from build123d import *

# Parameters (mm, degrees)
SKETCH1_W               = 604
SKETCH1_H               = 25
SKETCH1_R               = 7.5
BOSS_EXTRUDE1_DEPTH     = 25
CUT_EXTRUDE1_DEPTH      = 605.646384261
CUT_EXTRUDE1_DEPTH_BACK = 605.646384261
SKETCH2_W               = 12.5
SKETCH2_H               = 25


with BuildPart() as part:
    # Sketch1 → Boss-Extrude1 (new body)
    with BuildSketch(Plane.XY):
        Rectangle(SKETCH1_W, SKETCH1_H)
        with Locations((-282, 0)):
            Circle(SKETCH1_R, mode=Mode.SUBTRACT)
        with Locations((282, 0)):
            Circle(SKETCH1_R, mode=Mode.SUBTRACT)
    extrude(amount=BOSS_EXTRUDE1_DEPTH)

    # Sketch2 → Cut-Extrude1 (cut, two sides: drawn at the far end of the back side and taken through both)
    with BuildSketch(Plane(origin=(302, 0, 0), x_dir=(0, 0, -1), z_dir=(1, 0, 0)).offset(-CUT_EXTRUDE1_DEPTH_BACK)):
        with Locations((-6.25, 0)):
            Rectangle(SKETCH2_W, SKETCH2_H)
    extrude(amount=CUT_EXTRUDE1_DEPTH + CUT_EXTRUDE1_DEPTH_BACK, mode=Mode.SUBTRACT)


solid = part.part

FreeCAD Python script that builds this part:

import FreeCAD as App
import Part
import Sketcher
Q = App.Units.Quantity


def add_polygon(sketch, points):
    """Adds a closed chain of lines whose ends are joined by coincident constraints."""
    first, n = sketch.GeometryCount, len(points)
    for a, b in zip(points, points[1:] + points[:1]):
        sketch.addGeometry(Part.LineSegment(App.Vector(*a, 0), App.Vector(*b, 0)), False)
    for i in range(n):
        sketch.addConstraint(Sketcher.Constraint("Coincident", first + i, 2, first + (i + 1) % n, 1))

doc = App.newDocument("Part")
body = doc.addObject("PartDesign::Body", "Body")

# Sketch on XY plane
sketch1 = body.newObject("Sketcher::SketchObject", "Sketch")
sketch1.AttachmentSupport = (doc.getObject("XY_Plane"), [""])
sketch1.MapMode = "FlatFace"
add_polygon(sketch1, [(-302, 12), (-302, -12), (302, -12), (302, 12)])  # lines 0-3
sketch1.addGeometry(Part.Circle(App.Vector(-282, 0, 0), App.Vector(0, 0, 1), 8), False)  # 4
sketch1.addGeometry(Part.Circle(App.Vector(282, 0, 0), App.Vector(0, 0, 1), 8), False)  # 5
sketch1.addConstraint([
    Sketcher.Constraint("Vertical", 0),
    Sketcher.Constraint("Horizontal", 1),
    Sketcher.Constraint("Vertical", 2),
    Sketcher.Constraint("Horizontal", 3),
    Sketcher.Constraint("Equal", 4, 5),
    Sketcher.Constraint("Symmetric", 4, 3, 5, 3, -1, 1),
    Sketcher.Constraint("Symmetric", 0, 2, 2, 2, -1, 1),
    Sketcher.Constraint("PointOnObject", 4, 3, -1),
    Sketcher.Constraint("Diameter", 4, Q("15 mm")),
    Sketcher.Constraint("DistanceX", 1, 1, 1, 2, Q("604 mm")),
    Sketcher.Constraint("DistanceY", 0, 2, 0, 1, Q("25 mm")),
    Sketcher.Constraint("DistanceX", 4, 3, -1, 1, Q("282 mm")),
])
pad1 = body.newObject("PartDesign::Pad", "Pad")
pad1.Profile = sketch1
pad1.Length = 25

# Sketch on YZ plane
sketch2 = body.newObject("Sketcher::SketchObject", "Sketch001")
sketch2.AttachmentSupport = (doc.getObject("YZ_Plane"), [""])
sketch2.MapMode = "FlatFace"
sketch2.AttachmentOffset = App.Placement(App.Vector(0, 0, 302), App.Rotation())
add_polygon(sketch2, [(12, 12), (-12, 12), (-12, 0), (12, 0)])  # lines 0-3
sketch2.addConstraint([
    Sketcher.Constraint("Horizontal", 0),
    Sketcher.Constraint("Vertical", 1),
    Sketcher.Constraint("Horizontal", 2),
    Sketcher.Constraint("Vertical", 3),
    Sketcher.Constraint("Symmetric", 1, 2, 2, 2, -1, 1),
    Sketcher.Constraint("DistanceX", 0, 2, 0, 1, Q("25 mm")),
    Sketcher.Constraint("DistanceY", 1, 2, 1, 1, Q("12.5 mm")),
])
pocket1 = body.newObject("PartDesign::Pocket", "Pocket")
pocket1.Profile = sketch2
pocket1.Type = "ThroughAll"
pocket1.Midplane = True

doc.recompute()
